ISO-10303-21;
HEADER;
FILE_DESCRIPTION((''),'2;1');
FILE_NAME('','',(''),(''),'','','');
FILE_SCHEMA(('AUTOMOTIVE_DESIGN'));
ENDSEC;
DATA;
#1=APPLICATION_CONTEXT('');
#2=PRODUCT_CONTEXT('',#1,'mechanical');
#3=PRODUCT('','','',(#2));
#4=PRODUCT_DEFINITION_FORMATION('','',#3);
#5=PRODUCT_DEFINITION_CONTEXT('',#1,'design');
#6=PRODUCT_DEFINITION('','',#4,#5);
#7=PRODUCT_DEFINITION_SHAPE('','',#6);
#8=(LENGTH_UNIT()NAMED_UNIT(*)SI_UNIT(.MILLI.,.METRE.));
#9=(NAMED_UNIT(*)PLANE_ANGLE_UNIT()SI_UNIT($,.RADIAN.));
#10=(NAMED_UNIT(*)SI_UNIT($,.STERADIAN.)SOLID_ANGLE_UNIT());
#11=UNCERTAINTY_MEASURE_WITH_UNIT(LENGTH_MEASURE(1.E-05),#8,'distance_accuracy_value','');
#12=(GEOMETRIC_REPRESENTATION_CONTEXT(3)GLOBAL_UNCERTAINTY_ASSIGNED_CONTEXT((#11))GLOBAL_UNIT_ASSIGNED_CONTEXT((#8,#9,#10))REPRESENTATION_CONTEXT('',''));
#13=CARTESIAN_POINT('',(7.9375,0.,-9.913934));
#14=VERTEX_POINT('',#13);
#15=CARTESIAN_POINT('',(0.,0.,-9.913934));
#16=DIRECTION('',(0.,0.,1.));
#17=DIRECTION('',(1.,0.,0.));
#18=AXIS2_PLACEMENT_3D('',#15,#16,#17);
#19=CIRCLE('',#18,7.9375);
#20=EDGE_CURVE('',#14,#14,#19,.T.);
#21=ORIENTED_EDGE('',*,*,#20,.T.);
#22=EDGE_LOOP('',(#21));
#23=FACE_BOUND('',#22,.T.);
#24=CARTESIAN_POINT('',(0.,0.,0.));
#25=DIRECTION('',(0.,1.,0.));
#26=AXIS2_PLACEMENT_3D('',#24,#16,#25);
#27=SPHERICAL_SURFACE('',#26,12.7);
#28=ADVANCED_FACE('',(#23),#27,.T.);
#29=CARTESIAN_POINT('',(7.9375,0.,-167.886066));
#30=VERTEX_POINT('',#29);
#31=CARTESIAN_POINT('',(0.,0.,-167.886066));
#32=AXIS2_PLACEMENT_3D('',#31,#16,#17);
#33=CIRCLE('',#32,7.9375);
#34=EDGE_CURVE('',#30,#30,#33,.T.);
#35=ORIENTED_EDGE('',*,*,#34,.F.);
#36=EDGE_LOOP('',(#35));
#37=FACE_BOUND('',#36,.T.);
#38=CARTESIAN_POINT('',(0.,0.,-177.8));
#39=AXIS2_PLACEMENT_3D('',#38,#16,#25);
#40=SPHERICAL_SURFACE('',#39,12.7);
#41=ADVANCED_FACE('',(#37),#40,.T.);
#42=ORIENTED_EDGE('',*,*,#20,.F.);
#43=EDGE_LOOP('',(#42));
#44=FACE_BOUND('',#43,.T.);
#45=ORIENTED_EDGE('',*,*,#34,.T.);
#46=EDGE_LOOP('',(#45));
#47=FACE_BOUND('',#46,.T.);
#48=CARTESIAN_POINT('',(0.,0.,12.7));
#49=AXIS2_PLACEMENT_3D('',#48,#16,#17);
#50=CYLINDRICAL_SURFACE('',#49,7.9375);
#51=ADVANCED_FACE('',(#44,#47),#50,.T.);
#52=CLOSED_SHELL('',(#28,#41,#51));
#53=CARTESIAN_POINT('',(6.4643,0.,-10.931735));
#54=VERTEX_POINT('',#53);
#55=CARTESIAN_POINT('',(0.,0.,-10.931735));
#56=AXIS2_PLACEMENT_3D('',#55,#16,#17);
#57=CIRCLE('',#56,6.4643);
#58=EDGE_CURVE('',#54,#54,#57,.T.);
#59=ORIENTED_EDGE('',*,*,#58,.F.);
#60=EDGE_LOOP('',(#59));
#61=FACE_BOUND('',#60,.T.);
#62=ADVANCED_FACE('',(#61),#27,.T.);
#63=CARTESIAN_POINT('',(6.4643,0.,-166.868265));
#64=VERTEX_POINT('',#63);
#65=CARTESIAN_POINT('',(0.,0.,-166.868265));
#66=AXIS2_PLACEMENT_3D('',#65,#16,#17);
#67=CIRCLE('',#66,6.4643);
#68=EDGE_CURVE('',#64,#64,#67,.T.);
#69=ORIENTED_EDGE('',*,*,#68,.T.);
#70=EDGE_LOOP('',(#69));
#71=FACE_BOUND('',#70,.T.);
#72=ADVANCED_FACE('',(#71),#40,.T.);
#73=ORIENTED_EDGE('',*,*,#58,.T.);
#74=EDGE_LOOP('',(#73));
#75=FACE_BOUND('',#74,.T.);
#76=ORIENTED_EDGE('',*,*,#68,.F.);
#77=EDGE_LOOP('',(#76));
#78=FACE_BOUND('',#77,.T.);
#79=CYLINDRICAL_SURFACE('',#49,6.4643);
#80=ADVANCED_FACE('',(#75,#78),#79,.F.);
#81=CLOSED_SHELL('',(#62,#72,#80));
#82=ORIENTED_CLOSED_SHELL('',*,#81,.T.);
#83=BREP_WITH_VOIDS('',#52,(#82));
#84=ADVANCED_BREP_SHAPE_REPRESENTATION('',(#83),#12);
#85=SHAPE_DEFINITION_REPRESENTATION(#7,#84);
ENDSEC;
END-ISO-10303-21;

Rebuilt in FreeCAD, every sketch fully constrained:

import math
import FreeCAD as App
import Part
import Sketcher
from FreeCAD import Vector
Q = App.Units.Quantity

doc = App.newDocument("Part")
body = doc.addObject("PartDesign::Body", "Body")

# Sketch on YZ plane
sketch1 = body.newObject("Sketcher::SketchObject", "Sketch")
sketch1.AttachmentSupport = (doc.getObject("YZ_Plane"), [""])
sketch1.MapMode = "FlatFace"
sketch1.addGeometry([
    Part.LineSegment(Vector(7.9375, -167.886066, 0), Vector(7.9375, -9.913934, 0)),  # 0
    Part.ArcOfCircle(Part.Circle(Vector(0, 0, 0), Vector(0, 0, 1), 12.7), math.radians(-51.317813), math.radians(90)),  # 1
    Part.LineSegment(Vector(0, 12.7, 0), Vector(0, -12.7, 0)),  # 2
    Part.ArcOfCircle(Part.Circle(Vector(0, 0, 0), Vector(0, 0, 1), 12.7), math.radians(-90), math.radians(-59.402757)),  # 3
    Part.LineSegment(Vector(6.4643, -10.931735, 0), Vector(6.4643, -166.868265, 0)),  # 4
    Part.ArcOfCircle(Part.Circle(Vector(0, -177.8, 0), Vector(0, 0, 1), 12.7), math.radians(59.402757), math.radians(90)),  # 5
    Part.LineSegment(Vector(0, -165.1, 0), Vector(0, -190.5, 0)),  # 6
    Part.ArcOfCircle(Part.Circle(Vector(0, -177.8, 0), Vector(0, 0, 1), 12.7), math.radians(-90), math.radians(51.317813)),  # 7
], False)
sketch1.addConstraint([
    Sketcher.Constraint("Coincident", 0, 2, 1, 1),
    Sketcher.Constraint("Coincident", 1, 2, 2, 1),
    Sketcher.Constraint("Coincident", 2, 2, 3, 1),
    Sketcher.Constraint("Coincident", 3, 2, 4, 1),
    Sketcher.Constraint("Coincident", 4, 2, 5, 1),
    Sketcher.Constraint("Coincident", 5, 2, 6, 1),
    Sketcher.Constraint("Coincident", 6, 2, 7, 1),
    Sketcher.Constraint("Coincident", 7, 2, 0, 1),
    Sketcher.Constraint("Vertical", 0),
    Sketcher.Constraint("Vertical", 2),
    Sketcher.Constraint("Vertical", 4),
    Sketcher.Constraint("Vertical", 6),
    Sketcher.Constraint("Coincident", 1, 3, -1, 1),
    Sketcher.Constraint("Coincident", 3, 3, -1, 1),
    Sketcher.Constraint("Coincident", 7, 3, 5, 3),
    Sketcher.Constraint("Equal", 1, 3),
    Sketcher.Constraint("Equal", 3, 5),
    Sketcher.Constraint("Equal", 5, 7),
    Sketcher.Constraint("PointOnObject", 5, 3, -2),
    Sketcher.Constraint("PointOnObject", 1, 2, -2),
    Sketcher.Constraint("PointOnObject", 5, 2, -2),
    Sketcher.Constraint("Radius", 1, Q("0.5 in")),
    Sketcher.Constraint("DistanceY", 5, 3, -1, 1, Q("7 in")),
    Sketcher.Constraint("DistanceX", -1, 1, 0, 2, Q("0.3125 in")),
    Sketcher.Constraint("DistanceX", 3, 2, 0, 2, Q("0.058 in")),
])
revolution = body.newObject("PartDesign::Revolution", "Revolution")
revolution.Profile = sketch1
revolution.ReferenceAxis = (sketch1, ["V_Axis"])
revolution.Angle = 360

doc.recompute()
